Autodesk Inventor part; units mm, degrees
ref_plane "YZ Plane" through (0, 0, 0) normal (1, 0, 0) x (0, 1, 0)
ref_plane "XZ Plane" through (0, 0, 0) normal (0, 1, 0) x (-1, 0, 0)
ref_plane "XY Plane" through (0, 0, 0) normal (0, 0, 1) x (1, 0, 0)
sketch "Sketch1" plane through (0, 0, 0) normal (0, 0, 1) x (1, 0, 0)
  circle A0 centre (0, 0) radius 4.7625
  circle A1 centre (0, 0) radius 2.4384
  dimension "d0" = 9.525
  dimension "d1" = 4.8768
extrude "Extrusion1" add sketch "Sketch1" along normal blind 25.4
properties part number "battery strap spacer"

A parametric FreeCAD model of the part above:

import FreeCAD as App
import Part
import Sketcher

V = App.Vector
Q = App.Units.Quantity

doc = App.newDocument("Part")
params = doc.addObject("Spreadsheet::Sheet", "Params")
for row, (alias, value) in enumerate([
    ("sketch1_diameter", "0.375 in"),
    ("sketch1_diameter2", "0.192 in"),
    ("pad1_length", "1 in"),
], start=1):
    params.set(f"A{row}", alias)
    params.set(f"B{row}", "=" + value)
    params.setAlias(f"B{row}", alias)

body = doc.addObject("PartDesign::Body", "Body")

sketch1 = body.newObject("Sketcher::SketchObject", "Sketch")
sketch1.AttachmentSupport = (doc.getObject("XY_Plane"), [""])
sketch1.MapMode = "FlatFace"
sketch1.addGeometry([
    Part.Circle(V(0, 0, 0), V(0, 0, 1), 4.8),
    Part.Circle(V(0, 0, 0), V(0, 0, 1), 2.4),
], False)
sketch1.addConstraint([
    Sketcher.Constraint("Coincident", 0, 3, -1, 1),
    Sketcher.Constraint("Coincident", 1, 3, -1, 1),
    Sketcher.Constraint("Diameter", 0, Q("0.375 in")),
    Sketcher.Constraint("Diameter", 1, Q("0.192 in")),
])
sketch1.setExpression("Constraints[2]", "Params.sketch1_diameter")
sketch1.setExpression("Constraints[3]", "Params.sketch1_diameter2")
pad1 = body.newObject("PartDesign::Pad", "Pad")
pad1.Profile = sketch1
pad1.setExpression("Length", "Params.pad1_length")

doc.recompute()
